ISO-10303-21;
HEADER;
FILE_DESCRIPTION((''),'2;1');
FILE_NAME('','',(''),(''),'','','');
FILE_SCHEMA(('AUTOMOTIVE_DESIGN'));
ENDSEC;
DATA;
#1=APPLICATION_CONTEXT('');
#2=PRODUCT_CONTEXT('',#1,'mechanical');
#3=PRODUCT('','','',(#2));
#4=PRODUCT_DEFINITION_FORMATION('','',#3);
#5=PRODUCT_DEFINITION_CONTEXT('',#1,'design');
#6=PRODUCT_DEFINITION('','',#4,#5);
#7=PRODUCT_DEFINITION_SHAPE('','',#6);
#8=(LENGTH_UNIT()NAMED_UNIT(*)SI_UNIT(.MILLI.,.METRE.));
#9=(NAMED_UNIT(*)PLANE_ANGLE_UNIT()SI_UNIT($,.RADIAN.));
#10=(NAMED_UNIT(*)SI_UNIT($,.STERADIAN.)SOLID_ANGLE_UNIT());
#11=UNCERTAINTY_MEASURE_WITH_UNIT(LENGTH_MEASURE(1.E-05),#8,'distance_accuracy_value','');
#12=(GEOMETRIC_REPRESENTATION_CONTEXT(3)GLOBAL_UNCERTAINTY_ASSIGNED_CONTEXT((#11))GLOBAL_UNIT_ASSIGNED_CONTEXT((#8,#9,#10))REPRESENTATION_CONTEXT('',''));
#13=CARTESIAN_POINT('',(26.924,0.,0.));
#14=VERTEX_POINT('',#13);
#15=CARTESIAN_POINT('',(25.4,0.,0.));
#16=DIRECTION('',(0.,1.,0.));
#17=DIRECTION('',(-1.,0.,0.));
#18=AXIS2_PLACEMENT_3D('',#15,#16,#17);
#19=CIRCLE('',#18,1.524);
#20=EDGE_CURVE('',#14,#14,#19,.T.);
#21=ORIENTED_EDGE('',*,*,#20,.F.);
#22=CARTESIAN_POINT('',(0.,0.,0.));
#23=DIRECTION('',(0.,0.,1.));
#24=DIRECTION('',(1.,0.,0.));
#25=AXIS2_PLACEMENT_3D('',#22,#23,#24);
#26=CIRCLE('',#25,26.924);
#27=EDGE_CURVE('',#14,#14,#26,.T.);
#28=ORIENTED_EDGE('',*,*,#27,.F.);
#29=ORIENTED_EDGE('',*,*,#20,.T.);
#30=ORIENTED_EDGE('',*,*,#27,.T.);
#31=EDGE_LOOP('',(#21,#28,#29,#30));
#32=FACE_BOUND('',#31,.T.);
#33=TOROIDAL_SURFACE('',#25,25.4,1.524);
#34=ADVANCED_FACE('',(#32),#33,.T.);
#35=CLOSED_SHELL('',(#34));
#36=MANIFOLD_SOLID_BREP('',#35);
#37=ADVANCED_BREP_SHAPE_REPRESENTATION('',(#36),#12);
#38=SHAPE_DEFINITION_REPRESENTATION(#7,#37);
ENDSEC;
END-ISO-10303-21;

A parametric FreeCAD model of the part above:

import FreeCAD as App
import Part
import Sketcher

V = App.Vector
Q = App.Units.Quantity

doc = App.newDocument("Part")
body = doc.addObject("PartDesign::Body", "Body")

sketch1 = body.newObject("Sketcher::SketchObject", "Sketch")
sketch1.AttachmentSupport = (doc.getObject("XZ_Plane"), [""])
sketch1.MapMode = "FlatFace"
sketch1.addGeometry(Part.Circle(V(25.4, 0, 0), V(0, 0, 1), 1.5), False)
sketch1.addConstraint(Sketcher.Constraint("PointOnObject", 0, 3, -1))
sketch1.addConstraint(Sketcher.Constraint("Diameter", 0, Q("0.12 in")))
sketch1.addConstraint(Sketcher.Constraint("DistanceX", -1, 1, 0, 3, Q("1 in")))

sketch2 = body.newObject("Sketcher::SketchObject", "Sketch001")
sketch2.AttachmentSupport = (doc.getObject("XY_Plane"), [""])
sketch2.MapMode = "FlatFace"
sketch2.addGeometry(Part.Circle(V(0, 0, 0), V(0, 0, 1), 25), False)
sketch2.addConstraint(Sketcher.Constraint("Coincident", 0, 3, -1, 1))
sketch2.addConstraint(Sketcher.Constraint("Diameter", 0, Q("2 in")))
doc.recompute()

additivepipe = body.newObject("PartDesign::AdditivePipe", "AdditivePipe")
additivepipe.Profile = sketch1
additivepipe.Spine = (sketch2, ["Edge1"])

doc.recompute()
